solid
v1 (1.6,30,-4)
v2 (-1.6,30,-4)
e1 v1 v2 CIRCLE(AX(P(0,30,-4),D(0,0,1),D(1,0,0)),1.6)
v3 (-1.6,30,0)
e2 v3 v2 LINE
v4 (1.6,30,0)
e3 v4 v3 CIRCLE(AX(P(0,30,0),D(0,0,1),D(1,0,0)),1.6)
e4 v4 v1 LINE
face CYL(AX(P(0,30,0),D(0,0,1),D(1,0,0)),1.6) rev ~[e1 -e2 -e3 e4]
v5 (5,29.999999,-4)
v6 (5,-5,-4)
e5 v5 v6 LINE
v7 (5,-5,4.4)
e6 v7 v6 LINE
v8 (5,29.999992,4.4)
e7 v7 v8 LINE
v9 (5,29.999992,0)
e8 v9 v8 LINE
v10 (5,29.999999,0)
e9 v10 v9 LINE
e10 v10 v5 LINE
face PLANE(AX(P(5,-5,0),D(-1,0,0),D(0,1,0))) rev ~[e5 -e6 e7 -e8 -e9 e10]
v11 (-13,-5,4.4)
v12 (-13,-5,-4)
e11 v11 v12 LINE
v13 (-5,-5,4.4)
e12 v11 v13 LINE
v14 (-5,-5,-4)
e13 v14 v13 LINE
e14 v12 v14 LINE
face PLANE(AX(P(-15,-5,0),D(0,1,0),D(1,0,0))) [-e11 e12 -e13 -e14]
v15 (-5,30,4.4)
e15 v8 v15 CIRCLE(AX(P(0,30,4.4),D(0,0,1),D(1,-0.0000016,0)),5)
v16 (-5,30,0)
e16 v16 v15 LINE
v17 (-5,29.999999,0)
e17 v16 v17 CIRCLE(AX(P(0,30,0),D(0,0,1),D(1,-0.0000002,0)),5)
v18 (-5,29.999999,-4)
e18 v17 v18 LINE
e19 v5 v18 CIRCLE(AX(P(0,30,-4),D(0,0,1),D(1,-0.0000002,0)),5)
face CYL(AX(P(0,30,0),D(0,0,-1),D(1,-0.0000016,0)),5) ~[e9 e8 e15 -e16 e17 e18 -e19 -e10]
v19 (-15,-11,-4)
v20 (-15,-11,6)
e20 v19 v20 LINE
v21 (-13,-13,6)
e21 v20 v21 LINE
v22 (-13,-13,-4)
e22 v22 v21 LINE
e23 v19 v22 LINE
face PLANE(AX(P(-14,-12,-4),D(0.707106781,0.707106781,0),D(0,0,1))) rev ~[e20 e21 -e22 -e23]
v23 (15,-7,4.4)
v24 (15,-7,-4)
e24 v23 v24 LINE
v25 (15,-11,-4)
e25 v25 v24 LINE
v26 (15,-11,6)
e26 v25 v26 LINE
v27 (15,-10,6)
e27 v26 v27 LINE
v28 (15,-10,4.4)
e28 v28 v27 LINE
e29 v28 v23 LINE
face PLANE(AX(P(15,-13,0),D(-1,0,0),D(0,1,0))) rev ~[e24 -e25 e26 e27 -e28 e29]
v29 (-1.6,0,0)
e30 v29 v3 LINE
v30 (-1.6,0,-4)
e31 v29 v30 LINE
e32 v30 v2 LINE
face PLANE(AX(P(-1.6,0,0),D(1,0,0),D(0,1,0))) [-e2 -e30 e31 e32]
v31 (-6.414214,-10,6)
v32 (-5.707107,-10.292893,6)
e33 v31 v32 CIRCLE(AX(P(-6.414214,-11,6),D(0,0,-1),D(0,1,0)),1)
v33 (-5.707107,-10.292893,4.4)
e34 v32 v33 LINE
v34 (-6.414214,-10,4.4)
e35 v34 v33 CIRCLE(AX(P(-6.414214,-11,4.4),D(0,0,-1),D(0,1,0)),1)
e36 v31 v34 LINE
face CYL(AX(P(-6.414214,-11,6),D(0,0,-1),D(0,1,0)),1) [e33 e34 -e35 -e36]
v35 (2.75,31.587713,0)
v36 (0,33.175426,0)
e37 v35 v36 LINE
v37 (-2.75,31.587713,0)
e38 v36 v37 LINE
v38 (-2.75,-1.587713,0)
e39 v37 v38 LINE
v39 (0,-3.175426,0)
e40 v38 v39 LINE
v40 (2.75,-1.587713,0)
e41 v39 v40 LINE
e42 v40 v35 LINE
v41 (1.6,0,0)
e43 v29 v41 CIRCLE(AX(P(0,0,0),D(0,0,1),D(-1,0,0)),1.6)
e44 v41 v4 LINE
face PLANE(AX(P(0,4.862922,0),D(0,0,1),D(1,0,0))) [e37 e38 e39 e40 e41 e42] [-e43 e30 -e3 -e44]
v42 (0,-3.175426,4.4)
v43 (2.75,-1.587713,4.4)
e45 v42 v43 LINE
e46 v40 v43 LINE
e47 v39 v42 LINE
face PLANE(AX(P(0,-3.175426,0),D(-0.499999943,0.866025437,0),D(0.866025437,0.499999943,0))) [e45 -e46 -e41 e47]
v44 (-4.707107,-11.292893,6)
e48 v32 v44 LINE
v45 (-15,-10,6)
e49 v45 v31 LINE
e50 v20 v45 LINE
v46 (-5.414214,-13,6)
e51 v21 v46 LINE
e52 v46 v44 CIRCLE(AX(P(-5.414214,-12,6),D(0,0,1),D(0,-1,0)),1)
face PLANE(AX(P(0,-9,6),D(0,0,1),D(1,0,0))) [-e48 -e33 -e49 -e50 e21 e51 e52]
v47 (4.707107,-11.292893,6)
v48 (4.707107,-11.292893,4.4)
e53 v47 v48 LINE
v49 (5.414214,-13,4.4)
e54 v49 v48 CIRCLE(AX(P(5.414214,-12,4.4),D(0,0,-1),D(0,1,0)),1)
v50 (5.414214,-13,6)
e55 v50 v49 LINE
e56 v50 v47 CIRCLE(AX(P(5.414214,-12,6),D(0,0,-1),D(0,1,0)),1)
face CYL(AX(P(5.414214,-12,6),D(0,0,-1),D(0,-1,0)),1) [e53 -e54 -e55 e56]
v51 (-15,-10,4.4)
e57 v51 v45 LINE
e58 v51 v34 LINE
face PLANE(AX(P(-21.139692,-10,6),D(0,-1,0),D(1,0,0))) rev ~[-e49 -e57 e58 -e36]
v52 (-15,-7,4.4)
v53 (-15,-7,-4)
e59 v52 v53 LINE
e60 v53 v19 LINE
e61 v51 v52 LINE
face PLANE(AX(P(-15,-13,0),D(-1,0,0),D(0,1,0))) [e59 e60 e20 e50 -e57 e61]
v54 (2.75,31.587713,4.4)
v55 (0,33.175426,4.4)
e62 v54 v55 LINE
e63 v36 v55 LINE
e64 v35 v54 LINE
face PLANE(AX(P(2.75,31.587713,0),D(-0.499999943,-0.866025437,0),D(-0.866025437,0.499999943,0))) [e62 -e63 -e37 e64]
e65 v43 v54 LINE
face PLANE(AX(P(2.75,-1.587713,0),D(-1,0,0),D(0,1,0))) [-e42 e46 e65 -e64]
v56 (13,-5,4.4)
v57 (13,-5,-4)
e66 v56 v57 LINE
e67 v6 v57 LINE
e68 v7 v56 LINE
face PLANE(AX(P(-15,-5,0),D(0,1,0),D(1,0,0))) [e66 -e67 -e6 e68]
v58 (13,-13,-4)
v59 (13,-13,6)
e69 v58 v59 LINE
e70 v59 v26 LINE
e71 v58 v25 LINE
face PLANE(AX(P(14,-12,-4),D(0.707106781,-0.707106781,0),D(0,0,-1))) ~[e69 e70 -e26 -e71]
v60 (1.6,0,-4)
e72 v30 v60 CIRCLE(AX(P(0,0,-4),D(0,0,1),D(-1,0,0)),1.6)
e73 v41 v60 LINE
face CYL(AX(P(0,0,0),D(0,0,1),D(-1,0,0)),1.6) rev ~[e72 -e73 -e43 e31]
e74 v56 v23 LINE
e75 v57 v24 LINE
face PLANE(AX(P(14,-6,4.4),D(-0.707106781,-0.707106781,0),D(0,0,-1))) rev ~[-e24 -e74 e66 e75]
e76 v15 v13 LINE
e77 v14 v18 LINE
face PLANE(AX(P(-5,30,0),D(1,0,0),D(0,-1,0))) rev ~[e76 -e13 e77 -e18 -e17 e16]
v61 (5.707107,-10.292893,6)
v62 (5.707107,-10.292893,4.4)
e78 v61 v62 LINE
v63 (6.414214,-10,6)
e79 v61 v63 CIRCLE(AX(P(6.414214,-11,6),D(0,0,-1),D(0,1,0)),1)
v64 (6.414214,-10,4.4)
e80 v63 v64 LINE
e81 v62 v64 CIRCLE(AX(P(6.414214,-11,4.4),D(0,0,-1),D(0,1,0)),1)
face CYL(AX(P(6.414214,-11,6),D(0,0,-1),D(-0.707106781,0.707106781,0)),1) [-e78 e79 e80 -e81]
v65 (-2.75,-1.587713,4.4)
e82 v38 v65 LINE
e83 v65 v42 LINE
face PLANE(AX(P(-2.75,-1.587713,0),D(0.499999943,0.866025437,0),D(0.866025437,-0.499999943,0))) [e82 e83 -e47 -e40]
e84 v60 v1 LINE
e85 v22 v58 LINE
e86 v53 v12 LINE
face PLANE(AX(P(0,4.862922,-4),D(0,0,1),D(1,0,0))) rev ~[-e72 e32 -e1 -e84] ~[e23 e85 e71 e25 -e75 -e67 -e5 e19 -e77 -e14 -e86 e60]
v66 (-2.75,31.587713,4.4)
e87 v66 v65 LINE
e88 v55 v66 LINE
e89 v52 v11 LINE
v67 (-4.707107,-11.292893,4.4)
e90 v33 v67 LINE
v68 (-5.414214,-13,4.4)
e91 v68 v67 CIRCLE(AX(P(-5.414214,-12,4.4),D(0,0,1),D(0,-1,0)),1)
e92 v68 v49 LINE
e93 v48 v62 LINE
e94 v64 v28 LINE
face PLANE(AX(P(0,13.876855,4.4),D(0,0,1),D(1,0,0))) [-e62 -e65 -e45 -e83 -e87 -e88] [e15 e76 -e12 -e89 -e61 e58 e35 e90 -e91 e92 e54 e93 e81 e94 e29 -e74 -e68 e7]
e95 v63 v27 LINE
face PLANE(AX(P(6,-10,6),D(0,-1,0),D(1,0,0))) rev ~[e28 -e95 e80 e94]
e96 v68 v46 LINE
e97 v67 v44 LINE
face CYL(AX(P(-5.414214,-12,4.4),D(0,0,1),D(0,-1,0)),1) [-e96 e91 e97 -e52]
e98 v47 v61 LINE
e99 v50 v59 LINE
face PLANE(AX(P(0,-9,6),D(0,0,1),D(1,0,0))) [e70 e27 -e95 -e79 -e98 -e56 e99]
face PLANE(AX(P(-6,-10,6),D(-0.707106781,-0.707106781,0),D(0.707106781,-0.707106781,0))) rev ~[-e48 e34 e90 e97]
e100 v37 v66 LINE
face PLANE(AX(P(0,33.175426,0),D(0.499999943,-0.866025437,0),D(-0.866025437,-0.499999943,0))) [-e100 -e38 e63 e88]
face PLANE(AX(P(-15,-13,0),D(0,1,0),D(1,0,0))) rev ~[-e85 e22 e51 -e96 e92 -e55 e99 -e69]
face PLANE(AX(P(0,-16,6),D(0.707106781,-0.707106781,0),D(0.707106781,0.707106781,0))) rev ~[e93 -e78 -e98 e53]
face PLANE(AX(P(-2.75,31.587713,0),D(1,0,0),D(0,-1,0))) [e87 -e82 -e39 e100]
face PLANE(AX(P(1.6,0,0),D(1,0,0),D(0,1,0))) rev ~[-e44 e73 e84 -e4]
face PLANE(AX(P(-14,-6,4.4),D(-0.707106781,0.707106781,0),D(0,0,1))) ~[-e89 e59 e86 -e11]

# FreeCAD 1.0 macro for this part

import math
import FreeCAD as App
import Part
import Sketcher
Q = App.Units.Quantity


def edges_at(feature, points):
    """Names of the edges that pass closest to the given points."""
    edges = feature.Shape.Edges
    near = lambda p: min(range(len(edges)), key=lambda i: edges[i].distToShape(Part.Vertex(*p))[0])
    return sorted({f"Edge{near(p) + 1}" for p in points})

doc = App.newDocument("Part")
body = doc.addObject("PartDesign::Body", "Body")

# Sketch on XY plane
sketch1 = doc.addObject("Sketcher::SketchObject", "Sketch")
body.addObject(sketch1)
sketch1.AttachmentSupport = (doc.XY_Plane, [""])
sketch1.MapMode = "FlatFace"
sketch1.addGeometry([
    Part.ArcOfCircle(Part.Circle(App.Vector(0, 30, 0), App.Vector(0, 0, 1), 5), math.radians(-0.000011), math.radians(180.000011)),  # 0
    Part.LineSegment(App.Vector(-5, 29.999999, 0), App.Vector(-5, -5, 0)),  # 1
    Part.LineSegment(App.Vector(-5, -5, 0), App.Vector(-15, -5, 0)),  # 2
    Part.LineSegment(App.Vector(-15, -5, 0), App.Vector(-15, -13, 0)),  # 3
    Part.LineSegment(App.Vector(-15, -13, 0), App.Vector(15, -13, 0)),  # 4
    Part.LineSegment(App.Vector(15, -13, 0), App.Vector(15, -5, 0)),  # 5
    Part.LineSegment(App.Vector(15, -5, 0), App.Vector(5, -5, 0)),  # 6
    Part.LineSegment(App.Vector(5, -5, 0), App.Vector(5, 29.999999, 0)),  # 7
    Part.ArcOfCircle(Part.Circle(App.Vector(0, 0, 0), App.Vector(0, 0, 1), 1.6), math.radians(180), math.radians(360)),  # 8
    Part.LineSegment(App.Vector(-1.6, 0, 0), App.Vector(-1.6, 30, 0)),  # 9
    Part.ArcOfCircle(Part.Circle(App.Vector(0, 30, 0), App.Vector(0, 0, 1), 1.6), math.radians(0), math.radians(180)),  # 10
    Part.LineSegment(App.Vector(1.6, 30, 0), App.Vector(1.6, 0, 0)),  # 11
], False)
sketch1.addConstraint([
    Sketcher.Constraint("Tangent", 0, 2, 1, 1),
    Sketcher.Constraint("Coincident", 1, 2, 2, 1),
    Sketcher.Constraint("Coincident", 2, 2, 3, 1),
    Sketcher.Constraint("Coincident", 3, 2, 4, 1),
    Sketcher.Constraint("Coincident", 4, 2, 5, 1),
    Sketcher.Constraint("Coincident", 5, 2, 6, 1),
    Sketcher.Constraint("Coincident", 6, 2, 7, 1),
    Sketcher.Constraint("Tangent", 7, 2, 0, 1),
    Sketcher.Constraint("Tangent", 8, 1, 9, 1),
    Sketcher.Constraint("Tangent", 9, 2, 10, 2),
    Sketcher.Constraint("Tangent", 10, 1, 11, 1),
    Sketcher.Constraint("Tangent", 11, 2, 8, 2),
    Sketcher.Constraint("Vertical", 1),
    Sketcher.Constraint("Horizontal", 2),
    Sketcher.Constraint("Vertical", 3),
    Sketcher.Constraint("Horizontal", 4),
    Sketcher.Constraint("Vertical", 5),
    Sketcher.Constraint("Horizontal", 6),
    Sketcher.Constraint("Vertical", 7),
    Sketcher.Constraint("Vertical", 9),
    Sketcher.Constraint("Vertical", 11),
    Sketcher.Constraint("Coincident", 8, 3, -1, 1),
    Sketcher.Constraint("Coincident", 10, 3, 0, 3),
    Sketcher.Constraint("Symmetric", 2, 2, 5, 2, -2),
    Sketcher.Constraint("Equal", 4, 9),
    Sketcher.Constraint("Radius", 0, 5.0),
    Sketcher.Constraint("Radius", 8, 1.6),
    Sketcher.Constraint("DistanceX", 2, 2, 2, 1, 10.0),
    Sketcher.Constraint("DistanceY", 1, 2, 1, 1, 34.999999),
    Sketcher.Constraint("DistanceY", 3, 2, 3, 1, 8.0),
])
pad1 = doc.addObject("PartDesign::Pad", "Pad")
body.addObject(pad1)
pad1.Profile = sketch1
pad1.Length = 4
pad1.Reversed = True

# Sketch on XY plane
sketch2 = doc.addObject("Sketcher::SketchObject", "Sketch001")
body.addObject(sketch2)
sketch2.AttachmentSupport = (doc.XY_Plane, [""])
sketch2.MapMode = "FlatFace"
sketch2.addGeometry([
    Part.LineSegment(App.Vector(-15, -5, 0), App.Vector(-15, -13, 0)),
    Part.LineSegment(App.Vector(-15, -13, 0), App.Vector(15, -13, 0)),
    Part.LineSegment(App.Vector(15, -13, 0), App.Vector(15, -5, 0)),
    Part.LineSegment(App.Vector(15, -5, 0), App.Vector(-15, -5, 0)),
], False)
sketch2.addConstraint([
    Sketcher.Constraint("Coincident", 0, 2, 1, 1),
    Sketcher.Constraint("Coincident", 1, 2, 2, 1),
    Sketcher.Constraint("Coincident", 2, 2, 3, 1),
    Sketcher.Constraint("Coincident", 3, 2, 0, 1),
    Sketcher.Constraint("Vertical", 0),
    Sketcher.Constraint("Horizontal", 1),
    Sketcher.Constraint("Vertical", 2),
    Sketcher.Constraint("Horizontal", 3),
    Sketcher.Constraint("DistanceX", 1, 1, 1, 2, 30.0),
    Sketcher.Constraint("DistanceY", 0, 2, 0, 1, 8.0),
    Sketcher.Constraint("DistanceX", 0, 2, -1, 1, 15.0),
    Sketcher.Constraint("DistanceY", 0, 2, -1, 1, 13.0),
])
pad2 = doc.addObject("PartDesign::Pad", "Pad001")
body.addObject(pad2)
pad2.Profile = sketch2
pad2.Length = 6

# Sketch on XY plane
sketch3 = doc.addObject("Sketcher::SketchObject", "Sketch002")
body.addObject(sketch3)
sketch3.AttachmentSupport = (doc.XY_Plane, [""])
sketch3.MapMode = "FlatFace"
sketch3.AttachmentOffset = App.Placement(App.Vector(0, 0, 6), App.Rotation())
sketch3.addGeometry([
    Part.LineSegment(App.Vector(-6, -10, 0), App.Vector(0, -16, 0)),  # 0
    Part.LineSegment(App.Vector(0, -16, 0), App.Vector(6, -10, 0)),  # 1
    Part.LineSegment(App.Vector(6, -10, 0), App.Vector(22.322094, -10, 0)),  # 2
    Part.LineSegment(App.Vector(22.322094, -10, 0), App.Vector(22.322094, -1.337342, 0)),  # 3
    Part.LineSegment(App.Vector(22.322094, -1.337342, 0), App.Vector(-21.139692, -1.337342, 0)),  # 4
    Part.LineSegment(App.Vector(-21.139692, -1.337342, 0), App.Vector(-21.139692, -10, 0)),  # 5
    Part.LineSegment(App.Vector(-21.139692, -10, 0), App.Vector(-6, -10, 0)),  # 6
], False)
sketch3.addConstraint([
    Sketcher.Constraint("Coincident", 0, 2, 1, 1),
    Sketcher.Constraint("Coincident", 1, 2, 2, 1),
    Sketcher.Constraint("Coincident", 2, 2, 3, 1),
    Sketcher.Constraint("Coincident", 3, 2, 4, 1),
    Sketcher.Constraint("Coincident", 4, 2, 5, 1),
    Sketcher.Constraint("Coincident", 5, 2, 6, 1),
    Sketcher.Constraint("Coincident", 6, 2, 0, 1),
    Sketcher.Constraint("Horizontal", 2),
    Sketcher.Constraint("Vertical", 3),
    Sketcher.Constraint("Horizontal", 4),
    Sketcher.Constraint("Vertical", 5),
    Sketcher.Constraint("Horizontal", 6),
    Sketcher.Constraint("Symmetric", 1, 2, 6, 2, -2),
    Sketcher.Constraint("PointOnObject", 0, 2, -2),
    Sketcher.Constraint("Perpendicular", 0, 1),
    Sketcher.Constraint("DistanceY", 0, 2, -1, 1, 16.0),
    Sketcher.Constraint("DistanceX", -1, 1, 1, 2, 6.0),
    Sketcher.Constraint("DistanceX", 2, 1, 2, 2, 16.322094),
    Sketcher.Constraint("DistanceX", 4, 2, 4, 1, 43.461786),
    Sketcher.Constraint("DistanceY", 3, 1, 3, 2, 8.662658),
])
pocket1 = doc.addObject("PartDesign::Pocket", "Pocket")
body.addObject(pocket1)
pocket1.Profile = sketch3
pocket1.Length = 1.6
doc.recompute()

chamfer = doc.addObject("PartDesign::Chamfer", "Chamfer")
body.addObject(chamfer)
chamfer.Base = (pocket1, edges_at(pocket1, [
    (15, -5, 0.2),
    (15, -13, 1),
    (-15, -5, 0.2),
    (-15, -13, 1),
]))
chamfer.Size = 2
doc.recompute()

fillet = doc.addObject("PartDesign::Fillet", "Fillet")
body.addObject(fillet)
fillet.Base = (chamfer, edges_at(chamfer, [
    (-6, -10, 5.2),
    (-3, -13, 5.2),
    (6, -10, 5.2),
    (3, -13, 5.2),
]))
fillet.Radius = 1

# Sketch on XY plane
sketch4 = doc.addObject("Sketcher::SketchObject", "Sketch003")
body.addObject(sketch4)
sketch4.AttachmentSupport = (doc.XY_Plane, [""])
sketch4.MapMode = "FlatFace"
sketch4.addGeometry([
    Part.ArcOfCircle(Part.Circle(App.Vector(0, 30, 0), App.Vector(0, 0, 1), 5), math.radians(-0.000092), math.radians(180)),  # 0
    Part.LineSegment(App.Vector(-5, 30, 0), App.Vector(-5, -5, 0)),  # 1
    Part.LineSegment(App.Vector(-5, -5, 0), App.Vector(5, -5, 0)),  # 2
    Part.LineSegment(App.Vector(5, -5, 0), App.Vector(5, 29.999992, 0)),  # 3
    Part.LineSegment(App.Vector(0, -3.175426, 0), App.Vector(-2.75, -1.587713, 0)),  # 4
    Part.LineSegment(App.Vector(-2.75, -1.587713, 0), App.Vector(-2.75, 31.587713, 0)),  # 5
    Part.LineSegment(App.Vector(-2.75, 31.587713, 0), App.Vector(0, 33.175426, 0)),  # 6
    Part.LineSegment(App.Vector(0, 33.175426, 0), App.Vector(2.75, 31.587713, 0)),  # 7
    Part.LineSegment(App.Vector(2.75, 31.587713, 0), App.Vector(2.75, -1.587713, 0)),  # 8
    Part.LineSegment(App.Vector(2.75, -1.587713, 0), App.Vector(0, -3.175426, 0)),  # 9
], False)
sketch4.addConstraint([
    Sketcher.Constraint("Tangent", 0, 2, 1, 1),
    Sketcher.Constraint("Coincident", 1, 2, 2, 1),
    Sketcher.Constraint("Coincident", 2, 2, 3, 1),
    Sketcher.Constraint("Tangent", 3, 2, 0, 1),
    Sketcher.Constraint("Coincident", 4, 2, 5, 1),
    Sketcher.Constraint("Coincident", 5, 2, 6, 1),
    Sketcher.Constraint("Coincident", 6, 2, 7, 1),
    Sketcher.Constraint("Coincident", 7, 2, 8, 1),
    Sketcher.Constraint("Coincident", 8, 2, 9, 1),
    Sketcher.Constraint("Coincident", 9, 2, 4, 1),
    Sketcher.Constraint("Vertical", 1),
    Sketcher.Constraint("Horizontal", 2),
    Sketcher.Constraint("Vertical", 3),
    Sketcher.Constraint("Vertical", 5),
    Sketcher.Constraint("Vertical", 8),
    Sketcher.Constraint("Symmetric", 5, 2, 7, 2, -2),
    Sketcher.Constraint("PointOnObject", 0, 3, -2),
    Sketcher.Constraint("PointOnObject", 6, 2, -2),
    Sketcher.Constraint("PointOnObject", 9, 2, -2),
    Sketcher.Constraint("Parallel", 4, 7),
    Sketcher.Constraint("Parallel", 6, 9),
    Sketcher.Constraint("Radius", 0, 5.0),
    Sketcher.Constraint("DistanceY", 1, 2, 1, 1, 35.0),
    Sketcher.Constraint("Angle", 4, Q("150.000004 deg")),
    Sketcher.Constraint("DistanceY", -1, 1, 0, 3, 30.0),
    Sketcher.Constraint("DistanceX", 5, 2, 7, 2, 5.5),
    Sketcher.Constraint("DistanceY", 5, 1, 5, 2, 33.175426),
    Sketcher.Constraint("DistanceY", 3, 2, 5, 2, 1.587721),
])
pad3 = doc.addObject("PartDesign::Pad", "Pad002")
body.addObject(pad3)
pad3.Profile = sketch4
pad3.Length = 4.4

doc.recompute()
